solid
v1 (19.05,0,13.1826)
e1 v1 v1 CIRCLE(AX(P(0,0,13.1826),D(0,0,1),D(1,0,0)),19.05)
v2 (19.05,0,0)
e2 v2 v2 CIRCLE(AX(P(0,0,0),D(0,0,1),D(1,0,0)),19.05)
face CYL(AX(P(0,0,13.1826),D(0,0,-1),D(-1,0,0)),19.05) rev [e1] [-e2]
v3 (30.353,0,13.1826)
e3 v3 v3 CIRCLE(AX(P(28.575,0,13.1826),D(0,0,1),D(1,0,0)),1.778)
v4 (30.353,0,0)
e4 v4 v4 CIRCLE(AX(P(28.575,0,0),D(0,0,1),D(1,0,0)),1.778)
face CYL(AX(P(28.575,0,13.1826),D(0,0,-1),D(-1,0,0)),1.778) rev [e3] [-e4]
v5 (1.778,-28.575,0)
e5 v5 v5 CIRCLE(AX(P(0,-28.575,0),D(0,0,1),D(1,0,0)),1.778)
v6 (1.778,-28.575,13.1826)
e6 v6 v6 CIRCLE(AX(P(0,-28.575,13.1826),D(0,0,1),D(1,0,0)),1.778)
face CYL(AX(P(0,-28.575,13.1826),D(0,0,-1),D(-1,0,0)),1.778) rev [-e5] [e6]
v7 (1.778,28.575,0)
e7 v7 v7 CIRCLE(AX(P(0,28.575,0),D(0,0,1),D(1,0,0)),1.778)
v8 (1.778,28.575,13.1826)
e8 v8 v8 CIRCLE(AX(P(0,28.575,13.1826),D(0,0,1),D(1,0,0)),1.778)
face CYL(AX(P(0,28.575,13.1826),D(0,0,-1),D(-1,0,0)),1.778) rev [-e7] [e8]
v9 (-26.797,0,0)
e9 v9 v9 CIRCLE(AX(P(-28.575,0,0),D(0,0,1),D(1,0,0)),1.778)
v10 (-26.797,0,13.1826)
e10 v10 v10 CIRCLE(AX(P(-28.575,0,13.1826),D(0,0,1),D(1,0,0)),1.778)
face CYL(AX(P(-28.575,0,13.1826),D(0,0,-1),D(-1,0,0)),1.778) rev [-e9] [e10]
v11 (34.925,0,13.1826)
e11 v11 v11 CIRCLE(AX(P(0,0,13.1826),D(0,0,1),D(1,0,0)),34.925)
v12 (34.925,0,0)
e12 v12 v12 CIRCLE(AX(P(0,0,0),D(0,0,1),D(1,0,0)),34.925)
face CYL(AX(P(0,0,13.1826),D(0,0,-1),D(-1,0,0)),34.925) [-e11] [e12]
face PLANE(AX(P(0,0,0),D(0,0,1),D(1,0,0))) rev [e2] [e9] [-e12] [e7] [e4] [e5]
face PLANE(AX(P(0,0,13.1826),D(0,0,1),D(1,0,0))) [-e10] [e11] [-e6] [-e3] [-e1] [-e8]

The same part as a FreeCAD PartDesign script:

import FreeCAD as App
import Part
import Sketcher
Q = App.Units.Quantity

doc = App.newDocument("Part")
body = doc.addObject("PartDesign::Body", "Body")

# Sketch on XY plane
sketch1 = body.newObject("Sketcher::SketchObject", "Sketch")
sketch1.AttachmentSupport = (doc.getObject("XY_Plane"), [""])
sketch1.MapMode = "FlatFace"
sketch1.addGeometry([
    Part.Circle(App.Vector(0, 0, 0), App.Vector(0, 0, 1), 34.9),  # 0
    Part.Circle(App.Vector(0, -28.6, 0), App.Vector(0, 0, 1), 1.8),  # 1
    Part.Circle(App.Vector(-28.6, 0, 0), App.Vector(0, 0, 1), 1.8),  # 2
    Part.Circle(App.Vector(0, 0, 0), App.Vector(0, 0, 1), 19.1),  # 3
    Part.Circle(App.Vector(28.6, 0, 0), App.Vector(0, 0, 1), 1.8),  # 4
    Part.Circle(App.Vector(0, 28.6, 0), App.Vector(0, 0, 1), 1.8),  # 5
], False)
sketch1.addConstraint([
    Sketcher.Constraint("Coincident", 0, 3, -1, 1),
    Sketcher.Constraint("Coincident", 3, 3, -1, 1),
    Sketcher.Constraint("Equal", 1, 2),
    Sketcher.Constraint("Equal", 2, 4),
    Sketcher.Constraint("Equal", 4, 5),
    Sketcher.Constraint("Symmetric", 2, 3, 4, 3, -1, 1),
    Sketcher.Constraint("Symmetric", 1, 3, 5, 3, -1, 1),
    Sketcher.Constraint("PointOnObject", 1, 3, -2),
    Sketcher.Constraint("PointOnObject", 2, 3, -1),
    Sketcher.Constraint("Diameter", 3, Q("1.5 in")),
    Sketcher.Constraint("Diameter", 0, Q("2.75 in")),
    Sketcher.Constraint("Diameter", 1, Q("0.14 in")),
    Sketcher.Constraint("DistanceX", 2, 3, 4, 3, Q("2.25 in")),
    Sketcher.Constraint("DistanceY", 1, 3, 5, 3, Q("2.25 in")),
])
pad1 = body.newObject("PartDesign::Pad", "Pad")
pad1.Profile = sketch1
pad1.Length = Q("0.519 in")

doc.recompute()
